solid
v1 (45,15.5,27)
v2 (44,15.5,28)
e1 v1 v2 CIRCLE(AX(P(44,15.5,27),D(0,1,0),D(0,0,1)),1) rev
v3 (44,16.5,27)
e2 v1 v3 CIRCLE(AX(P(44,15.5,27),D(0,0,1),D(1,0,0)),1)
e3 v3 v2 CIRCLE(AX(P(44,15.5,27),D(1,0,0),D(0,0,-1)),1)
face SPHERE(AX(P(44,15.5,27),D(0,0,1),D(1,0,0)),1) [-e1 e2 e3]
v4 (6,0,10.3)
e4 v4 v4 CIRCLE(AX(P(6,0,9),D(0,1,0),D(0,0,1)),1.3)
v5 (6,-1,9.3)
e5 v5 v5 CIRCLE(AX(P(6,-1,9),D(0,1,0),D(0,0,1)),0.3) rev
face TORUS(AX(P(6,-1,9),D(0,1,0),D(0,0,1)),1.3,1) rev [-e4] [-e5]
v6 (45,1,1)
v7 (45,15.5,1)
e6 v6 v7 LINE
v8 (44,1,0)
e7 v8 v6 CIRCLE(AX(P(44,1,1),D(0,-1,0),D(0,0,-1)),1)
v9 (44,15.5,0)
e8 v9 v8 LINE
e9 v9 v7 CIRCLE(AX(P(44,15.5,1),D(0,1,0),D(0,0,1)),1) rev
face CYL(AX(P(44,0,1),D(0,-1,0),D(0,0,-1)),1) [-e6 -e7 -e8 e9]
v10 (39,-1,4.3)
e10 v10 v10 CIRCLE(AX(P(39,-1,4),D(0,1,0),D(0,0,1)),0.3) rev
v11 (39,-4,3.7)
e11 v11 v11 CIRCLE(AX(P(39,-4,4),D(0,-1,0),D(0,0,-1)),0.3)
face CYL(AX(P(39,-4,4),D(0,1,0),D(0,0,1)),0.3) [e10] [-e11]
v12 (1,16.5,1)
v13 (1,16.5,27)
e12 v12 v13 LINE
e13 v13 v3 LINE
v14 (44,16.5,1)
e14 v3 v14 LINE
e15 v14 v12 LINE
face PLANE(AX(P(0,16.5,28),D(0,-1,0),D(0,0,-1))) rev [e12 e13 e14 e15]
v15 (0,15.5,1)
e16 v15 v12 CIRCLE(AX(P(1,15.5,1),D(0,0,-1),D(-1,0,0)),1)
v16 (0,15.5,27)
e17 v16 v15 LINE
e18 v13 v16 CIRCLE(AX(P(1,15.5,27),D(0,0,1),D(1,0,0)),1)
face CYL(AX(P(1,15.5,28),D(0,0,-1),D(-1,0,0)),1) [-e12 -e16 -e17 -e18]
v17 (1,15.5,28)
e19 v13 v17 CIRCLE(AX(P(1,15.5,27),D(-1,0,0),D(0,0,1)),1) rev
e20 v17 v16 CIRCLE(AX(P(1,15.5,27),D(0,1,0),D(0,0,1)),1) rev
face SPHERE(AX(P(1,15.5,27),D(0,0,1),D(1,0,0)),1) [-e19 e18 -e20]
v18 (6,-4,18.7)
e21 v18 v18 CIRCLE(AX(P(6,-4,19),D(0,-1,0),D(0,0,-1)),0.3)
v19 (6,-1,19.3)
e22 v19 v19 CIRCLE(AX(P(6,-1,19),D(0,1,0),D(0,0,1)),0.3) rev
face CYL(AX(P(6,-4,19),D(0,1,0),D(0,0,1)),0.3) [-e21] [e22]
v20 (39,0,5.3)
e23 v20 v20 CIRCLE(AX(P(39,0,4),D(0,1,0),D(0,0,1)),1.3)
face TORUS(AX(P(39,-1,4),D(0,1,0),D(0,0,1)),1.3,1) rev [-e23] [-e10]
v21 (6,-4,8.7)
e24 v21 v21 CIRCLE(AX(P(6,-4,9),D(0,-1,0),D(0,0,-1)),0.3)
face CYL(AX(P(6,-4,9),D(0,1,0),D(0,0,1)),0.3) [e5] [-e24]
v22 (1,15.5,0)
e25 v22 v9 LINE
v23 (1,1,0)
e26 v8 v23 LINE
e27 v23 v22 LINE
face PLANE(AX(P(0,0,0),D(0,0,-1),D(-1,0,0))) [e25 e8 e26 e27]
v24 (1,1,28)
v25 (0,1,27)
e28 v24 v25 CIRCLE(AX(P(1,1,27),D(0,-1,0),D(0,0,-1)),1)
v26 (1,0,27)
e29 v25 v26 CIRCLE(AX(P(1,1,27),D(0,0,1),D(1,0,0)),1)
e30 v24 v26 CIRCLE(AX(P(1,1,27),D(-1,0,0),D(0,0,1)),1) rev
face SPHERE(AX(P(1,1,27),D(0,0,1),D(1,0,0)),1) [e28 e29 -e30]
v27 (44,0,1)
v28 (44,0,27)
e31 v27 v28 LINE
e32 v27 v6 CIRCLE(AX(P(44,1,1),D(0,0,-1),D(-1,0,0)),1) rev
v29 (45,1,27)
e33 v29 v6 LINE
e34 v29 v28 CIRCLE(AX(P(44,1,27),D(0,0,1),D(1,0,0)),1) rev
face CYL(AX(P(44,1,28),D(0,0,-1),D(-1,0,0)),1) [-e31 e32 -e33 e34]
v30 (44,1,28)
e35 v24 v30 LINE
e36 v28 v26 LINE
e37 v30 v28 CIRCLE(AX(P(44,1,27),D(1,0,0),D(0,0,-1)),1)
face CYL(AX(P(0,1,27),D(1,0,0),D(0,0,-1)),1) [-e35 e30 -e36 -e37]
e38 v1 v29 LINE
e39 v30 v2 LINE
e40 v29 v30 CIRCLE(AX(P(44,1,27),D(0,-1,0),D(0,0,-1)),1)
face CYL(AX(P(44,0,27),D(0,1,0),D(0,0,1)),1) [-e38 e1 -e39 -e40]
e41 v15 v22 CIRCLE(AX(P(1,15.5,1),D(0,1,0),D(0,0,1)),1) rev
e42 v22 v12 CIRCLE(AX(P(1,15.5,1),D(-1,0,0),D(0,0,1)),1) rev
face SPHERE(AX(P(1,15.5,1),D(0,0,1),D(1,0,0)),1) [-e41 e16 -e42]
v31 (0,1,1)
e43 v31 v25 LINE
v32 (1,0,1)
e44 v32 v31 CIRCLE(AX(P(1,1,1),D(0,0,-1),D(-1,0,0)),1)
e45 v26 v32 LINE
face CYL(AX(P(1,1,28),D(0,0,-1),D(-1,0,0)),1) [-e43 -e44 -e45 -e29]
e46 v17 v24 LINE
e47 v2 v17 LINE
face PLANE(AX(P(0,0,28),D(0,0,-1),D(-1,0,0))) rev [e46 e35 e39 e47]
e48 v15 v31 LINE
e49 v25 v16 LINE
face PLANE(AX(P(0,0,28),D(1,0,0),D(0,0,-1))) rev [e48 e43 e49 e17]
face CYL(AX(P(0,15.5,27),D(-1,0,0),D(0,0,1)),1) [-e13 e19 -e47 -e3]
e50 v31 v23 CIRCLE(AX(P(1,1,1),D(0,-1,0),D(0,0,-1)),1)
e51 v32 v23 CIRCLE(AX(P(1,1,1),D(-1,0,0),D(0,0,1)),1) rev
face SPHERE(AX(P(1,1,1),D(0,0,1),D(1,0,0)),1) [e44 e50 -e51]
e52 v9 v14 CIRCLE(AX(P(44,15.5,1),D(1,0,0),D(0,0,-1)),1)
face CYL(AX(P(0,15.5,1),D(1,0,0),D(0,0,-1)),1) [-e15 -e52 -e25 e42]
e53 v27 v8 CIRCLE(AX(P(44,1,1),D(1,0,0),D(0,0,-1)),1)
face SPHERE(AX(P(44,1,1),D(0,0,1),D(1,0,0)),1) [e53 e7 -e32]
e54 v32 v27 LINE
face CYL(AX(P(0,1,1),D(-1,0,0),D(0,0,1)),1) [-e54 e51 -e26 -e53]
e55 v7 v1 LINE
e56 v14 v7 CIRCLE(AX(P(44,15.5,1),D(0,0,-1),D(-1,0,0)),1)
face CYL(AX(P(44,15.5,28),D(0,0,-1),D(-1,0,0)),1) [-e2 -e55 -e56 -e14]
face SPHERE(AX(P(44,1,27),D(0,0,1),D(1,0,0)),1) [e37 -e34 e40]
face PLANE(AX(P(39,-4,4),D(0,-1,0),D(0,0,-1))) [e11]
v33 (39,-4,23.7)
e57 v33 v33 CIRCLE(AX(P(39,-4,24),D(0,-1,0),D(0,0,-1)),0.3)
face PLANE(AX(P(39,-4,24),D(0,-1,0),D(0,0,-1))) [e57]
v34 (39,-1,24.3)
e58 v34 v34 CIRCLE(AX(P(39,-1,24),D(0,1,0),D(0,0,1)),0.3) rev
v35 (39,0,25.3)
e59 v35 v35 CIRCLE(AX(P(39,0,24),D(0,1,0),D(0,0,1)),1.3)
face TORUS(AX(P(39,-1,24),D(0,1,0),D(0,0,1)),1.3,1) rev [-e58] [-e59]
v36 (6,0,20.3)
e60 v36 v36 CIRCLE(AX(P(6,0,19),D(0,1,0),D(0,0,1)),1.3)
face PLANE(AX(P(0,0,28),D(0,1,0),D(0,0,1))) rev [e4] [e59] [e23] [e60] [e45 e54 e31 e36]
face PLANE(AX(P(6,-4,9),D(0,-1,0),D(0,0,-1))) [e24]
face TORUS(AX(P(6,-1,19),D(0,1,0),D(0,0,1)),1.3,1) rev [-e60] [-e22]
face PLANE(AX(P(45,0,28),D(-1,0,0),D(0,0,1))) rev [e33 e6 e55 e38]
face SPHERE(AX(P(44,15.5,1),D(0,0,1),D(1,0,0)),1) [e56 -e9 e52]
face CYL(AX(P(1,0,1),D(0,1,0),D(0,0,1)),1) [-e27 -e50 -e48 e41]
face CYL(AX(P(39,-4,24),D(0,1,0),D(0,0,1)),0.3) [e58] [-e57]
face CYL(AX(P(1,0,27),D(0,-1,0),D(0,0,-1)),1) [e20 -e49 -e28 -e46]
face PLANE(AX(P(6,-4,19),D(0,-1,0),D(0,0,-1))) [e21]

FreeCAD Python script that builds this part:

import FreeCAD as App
import Part
import Sketcher
from FreeCAD import Vector
Q = App.Units.Quantity


def edges_at(feature, points):
    """Names of the edges that pass closest to the given points."""
    edges = feature.Shape.Edges
    near = lambda p: min(range(len(edges)), key=lambda i: edges[i].distToShape(Part.Vertex(*p))[0])
    return sorted({f"Edge{near(p) + 1}" for p in points})

doc = App.newDocument("Part")
body = doc.addObject("PartDesign::Body", "Body")

sketch1 = body.newObject("Sketcher::SketchObject", "Sketch")
sketch1.AttachmentSupport = (doc.getObject("XY_Plane"), [""])
sketch1.MapMode = "FlatFace"
sketch1.addGeometry([
    Part.LineSegment(Vector(0, 16, 0), Vector(0, 0, 0)),
    Part.LineSegment(Vector(0, 0, 0), Vector(45, 0, 0)),
    Part.LineSegment(Vector(45, 0, 0), Vector(45, 16, 0)),
    Part.LineSegment(Vector(45, 16, 0), Vector(0, 16, 0)),
], False)
sketch1.addConstraint([
    Sketcher.Constraint("Coincident", 0, 2, 1, 1),
    Sketcher.Constraint("Coincident", 1, 2, 2, 1),
    Sketcher.Constraint("Coincident", 2, 2, 3, 1),
    Sketcher.Constraint("Coincident", 3, 2, 0, 1),
    Sketcher.Constraint("Vertical", 0),
    Sketcher.Constraint("Horizontal", 1),
    Sketcher.Constraint("Vertical", 2),
    Sketcher.Constraint("Horizontal", 3),
    Sketcher.Constraint("Coincident", 0, 2, -1, 1),
    Sketcher.Constraint("DistanceX", 1, 1, 1, 2, Q("45 mm")),
    Sketcher.Constraint("DistanceY", 0, 2, 0, 1, Q("16.5 mm")),
])
pad1 = body.newObject("PartDesign::Pad", "Pad")
pad1.Profile = sketch1
pad1.Length = 28

sketch2 = body.newObject("Sketcher::SketchObject", "Sketch001")
sketch2.AttachmentSupport = (doc.getObject("XZ_Plane"), [""])
sketch2.MapMode = "FlatFace"
sketch2.addGeometry([
    Part.Circle(Vector(6, 19, 0), Vector(0, 0, 1), 0.3),
    Part.Circle(Vector(6, 9, 0), Vector(0, 0, 1), 0.3),
    Part.Circle(Vector(39, 24, 0), Vector(0, 0, 1), 0.3),
    Part.Circle(Vector(39, 4, 0), Vector(0, 0, 1), 0.3),
], False)
sketch2.addConstraint([
    Sketcher.Constraint("Equal", 0, 1),
    Sketcher.Constraint("Equal", 1, 2),
    Sketcher.Constraint("Equal", 2, 3),
    Sketcher.Constraint("Vertical", 0, 3, 1, 3),
    Sketcher.Constraint("Vertical", 2, 3, 3, 3),
    Sketcher.Constraint("Diameter", 0, Q("0.6 mm")),
    Sketcher.Constraint("DistanceX", -1, 1, 0, 3, Q("6 mm")),
    Sketcher.Constraint("DistanceY", -1, 1, 0, 3, Q("19 mm")),
    Sketcher.Constraint("DistanceY", -1, 1, 1, 3, Q("9 mm")),
    Sketcher.Constraint("DistanceX", -1, 1, 2, 3, Q("39 mm")),
    Sketcher.Constraint("DistanceY", -1, 1, 2, 3, Q("24 mm")),
    Sketcher.Constraint("DistanceY", -1, 1, 3, 3, Q("4 mm")),
])
pad2 = body.newObject("PartDesign::Pad", "Pad001")
pad2.Profile = sketch2
pad2.Length = 4
doc.recompute()

fillet = body.newObject("PartDesign::Fillet", "Fillet")
fillet.Base = (pad2, edges_at(pad2, [
    (45, 8.25, 28),
    (22.5, 16.5, 28),
    (6, 0, 18.7),
    (6, 0, 8.7),
    (39, 0, 23.7),
    (39, 0, 3.7),
    (0, 8.25, 28),
    (22.5, 16.5, 0),
    (45, 8.25, 0),
    (22.5, 0, 0),
    (0, 8.25, 0),
    (22.5, 0, 28),
    (0, 16.5, 14),
    (45, 16.5, 14),
    (45, 0, 14),
    (0, 0, 14),
]))
fillet.Radius = 1

doc.recompute()
